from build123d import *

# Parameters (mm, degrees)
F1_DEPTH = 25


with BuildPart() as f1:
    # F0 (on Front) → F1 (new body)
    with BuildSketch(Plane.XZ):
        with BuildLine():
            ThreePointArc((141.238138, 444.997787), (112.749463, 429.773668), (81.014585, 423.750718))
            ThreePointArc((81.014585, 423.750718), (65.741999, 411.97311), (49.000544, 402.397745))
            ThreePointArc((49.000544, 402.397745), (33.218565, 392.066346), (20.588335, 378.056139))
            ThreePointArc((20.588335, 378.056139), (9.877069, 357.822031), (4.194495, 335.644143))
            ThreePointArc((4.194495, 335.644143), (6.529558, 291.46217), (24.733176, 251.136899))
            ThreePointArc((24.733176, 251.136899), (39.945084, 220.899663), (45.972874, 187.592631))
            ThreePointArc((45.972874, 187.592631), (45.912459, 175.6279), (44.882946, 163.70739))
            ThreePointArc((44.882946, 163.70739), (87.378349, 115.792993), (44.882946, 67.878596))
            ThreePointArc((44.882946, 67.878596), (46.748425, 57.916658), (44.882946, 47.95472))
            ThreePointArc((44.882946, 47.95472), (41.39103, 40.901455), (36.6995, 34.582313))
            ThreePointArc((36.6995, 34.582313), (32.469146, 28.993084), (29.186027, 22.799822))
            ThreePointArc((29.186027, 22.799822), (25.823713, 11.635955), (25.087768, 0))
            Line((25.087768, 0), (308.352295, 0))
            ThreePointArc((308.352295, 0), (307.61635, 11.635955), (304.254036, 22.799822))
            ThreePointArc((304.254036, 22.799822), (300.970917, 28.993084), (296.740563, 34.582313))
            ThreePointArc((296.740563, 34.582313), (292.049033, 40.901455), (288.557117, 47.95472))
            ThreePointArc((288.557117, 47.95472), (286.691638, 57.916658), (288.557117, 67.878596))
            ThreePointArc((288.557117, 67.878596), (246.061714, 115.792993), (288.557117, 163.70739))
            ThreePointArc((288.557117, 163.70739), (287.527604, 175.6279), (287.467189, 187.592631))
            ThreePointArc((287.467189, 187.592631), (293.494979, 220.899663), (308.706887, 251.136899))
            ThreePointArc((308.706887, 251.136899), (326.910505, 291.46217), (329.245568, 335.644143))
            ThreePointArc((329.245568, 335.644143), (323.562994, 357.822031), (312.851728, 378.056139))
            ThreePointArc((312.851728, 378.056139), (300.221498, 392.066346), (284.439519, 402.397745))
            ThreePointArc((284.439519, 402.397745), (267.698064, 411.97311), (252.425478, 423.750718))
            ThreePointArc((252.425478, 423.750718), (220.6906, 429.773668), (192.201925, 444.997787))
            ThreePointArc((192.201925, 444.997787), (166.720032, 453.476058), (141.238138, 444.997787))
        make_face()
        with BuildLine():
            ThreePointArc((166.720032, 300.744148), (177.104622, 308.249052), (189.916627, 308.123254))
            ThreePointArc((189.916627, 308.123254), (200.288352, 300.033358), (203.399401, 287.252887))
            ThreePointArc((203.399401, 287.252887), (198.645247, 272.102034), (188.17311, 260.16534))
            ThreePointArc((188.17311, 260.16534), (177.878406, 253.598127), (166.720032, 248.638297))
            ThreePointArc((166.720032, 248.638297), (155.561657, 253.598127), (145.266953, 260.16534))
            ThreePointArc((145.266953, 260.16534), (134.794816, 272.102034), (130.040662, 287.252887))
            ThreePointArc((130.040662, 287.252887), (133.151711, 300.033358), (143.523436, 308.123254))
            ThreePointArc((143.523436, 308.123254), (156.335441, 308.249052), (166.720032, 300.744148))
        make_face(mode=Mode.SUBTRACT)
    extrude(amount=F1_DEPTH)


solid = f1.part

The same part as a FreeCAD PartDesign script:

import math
import FreeCAD as App
import Part
import Sketcher
from FreeCAD import Vector
Q = App.Units.Quantity

doc = App.newDocument("Part")
params = doc.addObject("Spreadsheet::Sheet", "Params")
for row, (alias, value) in enumerate([
    ("pad1_length", "25 mm"),
], start=1):
    params.set(f"A{row}", alias)
    params.set(f"B{row}", "=" + value)
    params.setAlias(f"B{row}", alias)

body = doc.addObject("PartDesign::Body", "Body")

# Sketch on XZ plane
sketch1 = body.newObject("Sketcher::SketchObject", "Sketch")
sketch1.AttachmentSupport = (doc.getObject("XZ_Plane"), [""])
sketch1.MapMode = "FlatFace"
sketch1.addGeometry(Part.ArcOfCircle(Part.Circle(Vector(77.171298, 530.617861, 0), Vector(0, 0, 1), 106.936229), math.radians(-87.940347), math.radians(-53.193632)), False)
sketch1.addGeometry(Part.ArcOfCircle(Part.Circle(Vector(-12.227345, 528.870827, 0), Vector(0, 0, 1), 140.514394), math.radians(-64.167543), math.radians(-48.426854)), False)
sketch1.addGeometry(Part.ArcOfCircle(Part.Circle(Vector(81.005327, 336.28829, 0), Vector(0, 0, 1), 73.449072), math.radians(115.832464), math.radians(145.34288)), False)
sketch1.addGeometry(Part.ArcOfCircle(Part.Circle(Vector(100.559949, 322.769669, 0), Vector(0, 0, 1), 97.221669), math.radians(145.34288), math.radians(172.390316)), False)
sketch1.addGeometry(Part.ArcOfCircle(Part.Circle(Vector(123.006535, 319.770791, 0), Vector(0, 0, 1), 119.867694), math.radians(172.390315), math.radians(214.930361)), False)
sketch1.addGeometry(Part.ArcOfCircle(Part.Circle(Vector(-72.265526, 183.39322, 0), Vector(0, 0, 1), 118.31295), math.radians(2.034089), math.radians(34.930363)), False)
sketch1.addGeometry(Part.ArcOfCircle(Part.Circle(Vector(-101.503981, 182.354786, 0), Vector(0, 0, 1), 147.56984), math.radians(-7.259485), math.radians(2.034084)), False)
sketch1.addGeometry(Part.ArcOfCircle(Part.Circle(Vector(39.118438, 115.792993, 0), Vector(0, 0, 1), 48.259911), math.radians(-83.139804), math.radians(83.139804)), False)
sketch1.addGeometry(Part.ArcOfCircle(Part.Circle(Vector(19.216563, 57.916658, 0), Vector(0, 0, 1), 27.531862), math.radians(-21.212814), math.radians(21.212814)), False)
sketch1.addGeometry(Part.ArcOfCircle(Part.Circle(Vector(3.824724, 63.890723, 0), Vector(0, 0, 1), 44.042409), math.radians(-41.717535), math.radians(-21.212818)), False)
sketch1.addGeometry(Part.ArcOfCircle(Part.Circle(Vector(69.346059, 5.47737, 0), Vector(0, 0, 1), 43.736661), math.radians(138.282473), math.radians(156.667743)), False)
sketch1.addGeometry(Part.ArcOfCircle(Part.Circle(Vector(75.9623, 2.623564, 0), Vector(0, 0, 1), 50.942135), math.radians(156.667758), math.radians(182.952088)), False)
sketch1.addGeometry(Part.LineSegment(Vector(25.087768, 0, 0), Vector(308.352295, 0, 0)), False)
sketch1.addGeometry(Part.ArcOfCircle(Part.Circle(Vector(257.477763, 2.623564, 0), Vector(0, 0, 1), 50.942135), math.radians(-2.952088), math.radians(23.332242)), False)
sketch1.addGeometry(Part.ArcOfCircle(Part.Circle(Vector(264.094004, 5.47737, 0), Vector(0, 0, 1), 43.736661), math.radians(23.332257), math.radians(41.717527)), False)
sketch1.addGeometry(Part.ArcOfCircle(Part.Circle(Vector(329.615339, 63.890723, 0), Vector(0, 0, 1), 44.042409), math.radians(-158.787182), math.radians(-138.282465)), False)
sketch1.addGeometry(Part.ArcOfCircle(Part.Circle(Vector(314.2235, 57.916658, 0), Vector(0, 0, 1), 27.531862), math.radians(158.787186), math.radians(201.212814)), False)
sketch1.addGeometry(Part.ArcOfCircle(Part.Circle(Vector(294.321625, 115.792993, 0), Vector(0, 0, 1), 48.259911), math.radians(96.860196), math.radians(263.139804)), False)
sketch1.addGeometry(Part.ArcOfCircle(Part.Circle(Vector(434.944044, 182.354786, 0), Vector(0, 0, 1), 147.56984), math.radians(177.965916), math.radians(187.259485)), False)
sketch1.addGeometry(Part.ArcOfCircle(Part.Circle(Vector(405.705589, 183.39322, 0), Vector(0, 0, 1), 118.31295), math.radians(145.069637), math.radians(177.965911)), False)
sketch1.addGeometry(Part.ArcOfCircle(Part.Circle(Vector(210.433528, 319.770791, 0), Vector(0, 0, 1), 119.867694), math.radians(-34.930361), math.radians(7.609685)), False)
sketch1.addGeometry(Part.ArcOfCircle(Part.Circle(Vector(232.880114, 322.769669, 0), Vector(0, 0, 1), 97.221669), math.radians(7.609684), math.radians(34.65712)), False)
sketch1.addGeometry(Part.ArcOfCircle(Part.Circle(Vector(252.434736, 336.28829, 0), Vector(0, 0, 1), 73.449072), math.radians(34.65712), math.radians(64.167536)), False)
sketch1.addGeometry(Part.ArcOfCircle(Part.Circle(Vector(345.667408, 528.870827, 0), Vector(0, 0, 1), 140.514394), math.radians(-131.573146), math.radians(-115.832457)), False)
sketch1.addGeometry(Part.ArcOfCircle(Part.Circle(Vector(256.268765, 530.617861, 0), Vector(0, 0, 1), 106.936229), math.radians(-126.806368), math.radians(-92.059653)), False)
sketch1.addGeometry(Part.ArcOfCircle(Part.Circle(Vector(166.720032, 410.943331, 0), Vector(0, 0, 1), 42.532727), math.radians(53.19363), math.radians(126.80637)), False)
sketch1.addGeometry(Part.ArcOfCircle(Part.Circle(Vector(150.120645, 288.712524, 0), Vector(0, 0, 1), 20.50121), math.radians(35.93548), math.radians(108.77158)), False)
sketch1.addGeometry(Part.ArcOfCircle(Part.Circle(Vector(183.319418, 288.712526, 0), Vector(0, 0, 1), 20.501208), math.radians(71.228418), math.radians(144.064524)), False)
sketch1.addGeometry(Part.ArcOfCircle(Part.Circle(Vector(183.475535, 289.171862, 0), Vector(0, 0, 1), 20.016067), math.radians(-5.501496), math.radians(71.228419)), False)
sketch1.addGeometry(Part.ArcOfCircle(Part.Circle(Vector(165.135594, 290.938281, 0), Vector(0, 0, 1), 38.440878), math.radians(-53.180409), math.radians(-5.501497)), False)
sketch1.addGeometry(Part.ArcOfCircle(Part.Circle(Vector(139.200819, 325.581313, 0), Vector(0, 0, 1), 81.716184), math.radians(-70.320051), math.radians(-53.180411)), False)
sketch1.addGeometry(Part.ArcOfCircle(Part.Circle(Vector(194.239235, 325.5813, 0), Vector(0, 0, 1), 81.716169), math.radians(-126.81959), math.radians(-109.679946)), False)
sketch1.addGeometry(Part.ArcOfCircle(Part.Circle(Vector(168.304469, 290.938281, 0), Vector(0, 0, 1), 38.440878), math.radians(-174.498503), math.radians(-126.819591)), False)
sketch1.addGeometry(Part.ArcOfCircle(Part.Circle(Vector(149.964528, 289.171862, 0), Vector(0, 0, 1), 20.016067), math.radians(108.771581), math.radians(185.501496)), False)
sketch1.addConstraint(Sketcher.Constraint("Coincident", 0, 1, 1, 2))
sketch1.addConstraint(Sketcher.Constraint("Coincident", 1, 1, 2, 1))
sketch1.addConstraint(Sketcher.Constraint("Coincident", 2, 2, 3, 1))
sketch1.addConstraint(Sketcher.Constraint("Coincident", 3, 2, 4, 1))
sketch1.addConstraint(Sketcher.Constraint("Coincident", 4, 2, 5, 2))
sketch1.addConstraint(Sketcher.Constraint("Coincident", 5, 1, 6, 2))
sketch1.addConstraint(Sketcher.Constraint("Coincident", 6, 1, 7, 2))
sketch1.addConstraint(Sketcher.Constraint("Coincident", 7, 1, 8, 2))
sketch1.addConstraint(Sketcher.Constraint("Coincident", 8, 1, 9, 2))
sketch1.addConstraint(Sketcher.Constraint("Coincident", 9, 1, 10, 1))
sketch1.addConstraint(Sketcher.Constraint("Coincident", 10, 2, 11, 1))
sketch1.addConstraint(Sketcher.Constraint("Coincident", 11, 2, 12, 1))
sketch1.addConstraint(Sketcher.Constraint("Coincident", 12, 2, 13, 1))
sketch1.addConstraint(Sketcher.Constraint("Coincident", 13, 2, 14, 1))
sketch1.addConstraint(Sketcher.Constraint("Coincident", 14, 2, 15, 2))
sketch1.addConstraint(Sketcher.Constraint("Coincident", 15, 1, 16, 2))
sketch1.addConstraint(Sketcher.Constraint("Coincident", 16, 1, 17, 2))
sketch1.addConstraint(Sketcher.Constraint("Coincident", 17, 1, 18, 2))
sketch1.addConstraint(Sketcher.Constraint("Coincident", 18, 1, 19, 2))
sketch1.addConstraint(Sketcher.Constraint("Coincident", 19, 1, 20, 1))
sketch1.addConstraint(Sketcher.Constraint("Coincident", 20, 2, 21, 1))
sketch1.addConstraint(Sketcher.Constraint("Coincident", 21, 2, 22, 1))
sketch1.addConstraint(Sketcher.Constraint("Coincident", 22, 2, 23, 2))
sketch1.addConstraint(Sketcher.Constraint("Coincident", 23, 1, 24, 2))
sketch1.addConstraint(Sketcher.Constraint("Coincident", 24, 1, 25, 1))
sketch1.addConstraint(Sketcher.Constraint("Coincident", 25, 2, 0, 2))
sketch1.addConstraint(Sketcher.Constraint("Coincident", 26, 1, 27, 2))
sketch1.addConstraint(Sketcher.Constraint("Coincident", 27, 1, 28, 2))
sketch1.addConstraint(Sketcher.Constraint("Coincident", 28, 1, 29, 2))
sketch1.addConstraint(Sketcher.Constraint("Coincident", 29, 1, 30, 2))
sketch1.addConstraint(Sketcher.Constraint("Coincident", 30, 1, 31, 2))
sketch1.addConstraint(Sketcher.Constraint("Coincident", 31, 1, 32, 2))
sketch1.addConstraint(Sketcher.Constraint("Coincident", 32, 1, 33, 2))
sketch1.addConstraint(Sketcher.Constraint("Coincident", 33, 1, 26, 2))
sketch1.addConstraint(Sketcher.Constraint("Horizontal", 12))
sketch1.addConstraint(Sketcher.Constraint("PointOnObject", 11, 2, -1))
sketch1.addConstraint(Sketcher.Constraint("Radius", 0, Q("106.936229 mm")))
sketch1.addConstraint(Sketcher.Constraint("Radius", 2, Q("73.449072 mm")))
sketch1.addConstraint(Sketcher.Constraint("Radius", 3, Q("97.221669 mm")))
sketch1.addConstraint(Sketcher.Constraint("Radius", 5, Q("118.31295 mm")))
sketch1.addConstraint(Sketcher.Constraint("Radius", 6, Q("147.56984 mm")))
sketch1.addConstraint(Sketcher.Constraint("Radius", 7, Q("48.259911 mm")))
sketch1.addConstraint(Sketcher.Constraint("Radius", 8, Q("27.531862 mm")))
sketch1.addConstraint(Sketcher.Constraint("Radius", 9, Q("44.042409 mm")))
sketch1.addConstraint(Sketcher.Constraint("Radius", 10, Q("43.736661 mm")))
sketch1.addConstraint(Sketcher.Constraint("Radius", 14, Q("43.736661 mm")))
sketch1.addConstraint(Sketcher.Constraint("Radius", 15, Q("44.042409 mm")))
sketch1.addConstraint(Sketcher.Constraint("Radius", 16, Q("27.531862 mm")))
sketch1.addConstraint(Sketcher.Constraint("Radius", 17, Q("48.259911 mm")))
sketch1.addConstraint(Sketcher.Constraint("Radius", 18, Q("147.56984 mm")))
sketch1.addConstraint(Sketcher.Constraint("Radius", 19, Q("118.31295 mm")))
sketch1.addConstraint(Sketcher.Constraint("Radius", 21, Q("97.221669 mm")))
sketch1.addConstraint(Sketcher.Constraint("Radius", 22, Q("73.449072 mm")))
sketch1.addConstraint(Sketcher.Constraint("Radius", 24, Q("106.936229 mm")))
sketch1.addConstraint(Sketcher.Constraint("Radius", 26, Q("20.50121 mm")))
sketch1.addConstraint(Sketcher.Constraint("Radius", 31, Q("81.716169 mm")))
sketch1.addConstraint(Sketcher.Constraint("Radius", 1, Q("140.514394 mm")))
sketch1.addConstraint(Sketcher.Constraint("Radius", 4, Q("119.867694 mm")))
sketch1.addConstraint(Sketcher.Constraint("Radius", 11, Q("50.942135 mm")))
sketch1.addConstraint(Sketcher.Constraint("Radius", 13, Q("50.942135 mm")))
sketch1.addConstraint(Sketcher.Constraint("Radius", 20, Q("119.867694 mm")))
sketch1.addConstraint(Sketcher.Constraint("Radius", 23, Q("140.514394 mm")))
sketch1.addConstraint(Sketcher.Constraint("Radius", 25, Q("42.532727 mm")))
sketch1.addConstraint(Sketcher.Constraint("Radius", 27, Q("20.501208 mm")))
sketch1.addConstraint(Sketcher.Constraint("Radius", 28, Q("20.016067 mm")))
sketch1.addConstraint(Sketcher.Constraint("Radius", 29, Q("38.440878 mm")))
sketch1.addConstraint(Sketcher.Constraint("Radius", 30, Q("81.716184 mm")))
sketch1.addConstraint(Sketcher.Constraint("Radius", 32, Q("38.440878 mm")))
sketch1.addConstraint(Sketcher.Constraint("Radius", 33, Q("20.016067 mm")))
sketch1.addConstraint(Sketcher.Constraint("DistanceX", -1, 1, 11, 3, Q("75.9623 mm")))
sketch1.addConstraint(Sketcher.Constraint("DistanceX", -1, 1, 16, 3, Q("314.2235 mm")))
sketch1.addConstraint(Sketcher.Constraint("DistanceY", -1, 1, 31, 3, Q("325.5813 mm")))
sketch1.addConstraint(Sketcher.Constraint("DistanceY", -1, 1, 4, 2, Q("251.136899 mm")))
sketch1.addConstraint(Sketcher.Constraint("DistanceX", -1, 1, 9, 1, Q("36.6995 mm")))
sketch1.addConstraint(Sketcher.Constraint("DistanceY", -1, 1, 19, 1, Q("251.136899 mm")))
sketch1.addConstraint(Sketcher.Constraint("DistanceX", -1, 1, 28, 1, Q("203.399401 mm")))
sketch1.addConstraint(Sketcher.Constraint("DistanceX", 12, 1, 12, 2, Q("283.264527 mm")))
sketch1.addConstraint(Sketcher.Constraint("DistanceY", -1, 1, 0, 3, Q("530.617861 mm")))
sketch1.addConstraint(Sketcher.Constraint("DistanceY", -1, 1, 2, 3, Q("336.28829 mm")))
sketch1.addConstraint(Sketcher.Constraint("DistanceX", -1, 1, 3, 3, Q("100.559949 mm")))
sketch1.addConstraint(Sketcher.Constraint("DistanceY", -1, 1, 3, 3, Q("322.769669 mm")))
sketch1.addConstraint(Sketcher.Constraint("DistanceY", -1, 1, 4, 3, Q("319.770791 mm")))
sketch1.addConstraint(Sketcher.Constraint("DistanceY", -1, 1, 5, 3, Q("183.39322 mm")))
sketch1.addConstraint(Sketcher.Constraint("DistanceX", 6, 3, -1, 1, Q("101.503981 mm")))
sketch1.addConstraint(Sketcher.Constraint("DistanceX", -1, 1, 7, 3, Q("39.118438 mm")))
sketch1.addConstraint(Sketcher.Constraint("DistanceX", -1, 1, 10, 3, Q("69.346059 mm")))
sketch1.addConstraint(Sketcher.Constraint("DistanceY", -1, 1, 10, 3, Q("5.47737 mm")))
sketch1.addConstraint(Sketcher.Constraint("DistanceY", -1, 1, 14, 3, Q("5.47737 mm")))
sketch1.addConstraint(Sketcher.Constraint("DistanceX", -1, 1, 15, 3, Q("329.615339 mm")))
sketch1.addConstraint(Sketcher.Constraint("DistanceX", -1, 1, 19, 3, Q("405.705589 mm")))
sketch1.addConstraint(Sketcher.Constraint("DistanceY", -1, 1, 19, 3, Q("183.39322 mm")))
sketch1.addConstraint(Sketcher.Constraint("DistanceX", -1, 1, 20, 3, Q("210.433528 mm")))
sketch1.addConstraint(Sketcher.Constraint("DistanceY", -1, 1, 21, 3, Q("322.769669 mm")))
sketch1.addConstraint(Sketcher.Constraint("DistanceY", -1, 1, 22, 3, Q("336.28829 mm")))
sketch1.addConstraint(Sketcher.Constraint("DistanceX", -1, 1, 23, 3, Q("345.667408 mm")))
sketch1.addConstraint(Sketcher.Constraint("DistanceY", -1, 1, 24, 3, Q("530.617861 mm")))
sketch1.addConstraint(Sketcher.Constraint("DistanceX", -1, 1, 25, 3, Q("166.720032 mm")))
sketch1.addConstraint(Sketcher.Constraint("DistanceY", -1, 1, 25, 3, Q("410.943331 mm")))
sketch1.addConstraint(Sketcher.Constraint("DistanceY", -1, 1, 29, 3, Q("290.938281 mm")))
sketch1.addConstraint(Sketcher.Constraint("DistanceX", -1, 1, 30, 3, Q("139.200819 mm")))
sketch1.addConstraint(Sketcher.Constraint("DistanceX", -1, 1, 32, 3, Q("168.304469 mm")))
sketch1.addConstraint(Sketcher.Constraint("DistanceY", -1, 1, 32, 3, Q("290.938281 mm")))
sketch1.addConstraint(Sketcher.Constraint("DistanceX", -1, 1, 33, 3, Q("149.964528 mm")))
sketch1.addConstraint(Sketcher.Constraint("DistanceY", -1, 1, 0, 1, Q("423.750718 mm")))
sketch1.addConstraint(Sketcher.Constraint("DistanceY", -1, 1, 2, 2, Q("378.056139 mm")))
sketch1.addConstraint(Sketcher.Constraint("DistanceY", -1, 1, 5, 1, Q("187.592631 mm")))
sketch1.addConstraint(Sketcher.Constraint("DistanceY", -1, 1, 6, 1, Q("163.70739 mm")))
sketch1.addConstraint(Sketcher.Constraint("DistanceY", -1, 1, 8, 1, Q("47.95472 mm")))
sketch1.addConstraint(Sketcher.Constraint("DistanceY", -1, 1, 10, 2, Q("22.799822 mm")))
sketch1.addConstraint(Sketcher.Constraint("DistanceY", -1, 1, 13, 2, Q("22.799822 mm")))
sketch1.addConstraint(Sketcher.Constraint("DistanceY", -1, 1, 15, 1, Q("47.95472 mm")))
sketch1.addConstraint(Sketcher.Constraint("DistanceY", -1, 1, 17, 1, Q("163.70739 mm")))
sketch1.addConstraint(Sketcher.Constraint("DistanceX", -1, 1, 18, 1, Q("287.467189 mm")))
sketch1.addConstraint(Sketcher.Constraint("DistanceX", -1, 1, 20, 2, Q("329.245568 mm")))
sketch1.addConstraint(Sketcher.Constraint("DistanceX", -1, 1, 21, 2, Q("312.851728 mm")))
sketch1.addConstraint(Sketcher.Constraint("DistanceX", -1, 1, 22, 2, Q("284.439519 mm")))
sketch1.addConstraint(Sketcher.Constraint("DistanceX", -1, 1, 26, 1, Q("166.720032 mm")))
sketch1.addConstraint(Sketcher.Constraint("DistanceX", -1, 1, 29, 1, Q("188.17311 mm")))
sketch1.addConstraint(Sketcher.Constraint("DistanceY", -1, 1, 29, 1, Q("260.16534 mm")))
sketch1.addConstraint(Sketcher.Constraint("DistanceY", -1, 1, 31, 1, Q("260.16534 mm")))
sketch1.addConstraint(Sketcher.Constraint("DistanceX", -1, 1, 32, 1, Q("130.040662 mm")))
sketch1.addConstraint(Sketcher.Constraint("DistanceX", -1, 1, 8, 3, Q("19.216563 mm")))
sketch1.addConstraint(Sketcher.Constraint("DistanceY", -1, 1, 8, 3, Q("57.916658 mm")))
sketch1.addConstraint(Sketcher.Constraint("DistanceX", -1, 1, 13, 3, Q("257.477763 mm")))
sketch1.addConstraint(Sketcher.Constraint("DistanceX", -1, 1, 17, 3, Q("294.321625 mm")))
sketch1.addConstraint(Sketcher.Constraint("DistanceY", -1, 1, 17, 3, Q("115.792993 mm")))
sketch1.addConstraint(Sketcher.Constraint("DistanceX", -1, 1, 26, 3, Q("150.120645 mm")))
sketch1.addConstraint(Sketcher.Constraint("DistanceX", -1, 1, 27, 3, Q("183.319418 mm")))
sketch1.addConstraint(Sketcher.Constraint("DistanceX", -1, 1, 1, 1, Q("49.000544 mm")))
sketch1.addConstraint(Sketcher.Constraint("DistanceX", -1, 1, 3, 2, Q("4.194495 mm")))
sketch1.addConstraint(Sketcher.Constraint("DistanceX", -1, 1, 14, 2, Q("296.740563 mm")))
sketch1.addConstraint(Sketcher.Constraint("DistanceX", -1, 1, 24, 1, Q("192.201925 mm")))
sketch1.addConstraint(Sketcher.Constraint("DistanceX", -1, 1, 25, 2, Q("141.238138 mm")))
sketch1.addConstraint(Sketcher.Constraint("DistanceX", -1, 1, 27, 1, Q("189.916627 mm")))
sketch1.addConstraint(Sketcher.Constraint("DistanceX", -1, 1, 33, 1, Q("143.523436 mm")))
pad1 = body.newObject("PartDesign::Pad", "Pad")
pad1.Profile = sketch1
pad1.setExpression("Length", "Params.pad1_length")

doc.recompute()
